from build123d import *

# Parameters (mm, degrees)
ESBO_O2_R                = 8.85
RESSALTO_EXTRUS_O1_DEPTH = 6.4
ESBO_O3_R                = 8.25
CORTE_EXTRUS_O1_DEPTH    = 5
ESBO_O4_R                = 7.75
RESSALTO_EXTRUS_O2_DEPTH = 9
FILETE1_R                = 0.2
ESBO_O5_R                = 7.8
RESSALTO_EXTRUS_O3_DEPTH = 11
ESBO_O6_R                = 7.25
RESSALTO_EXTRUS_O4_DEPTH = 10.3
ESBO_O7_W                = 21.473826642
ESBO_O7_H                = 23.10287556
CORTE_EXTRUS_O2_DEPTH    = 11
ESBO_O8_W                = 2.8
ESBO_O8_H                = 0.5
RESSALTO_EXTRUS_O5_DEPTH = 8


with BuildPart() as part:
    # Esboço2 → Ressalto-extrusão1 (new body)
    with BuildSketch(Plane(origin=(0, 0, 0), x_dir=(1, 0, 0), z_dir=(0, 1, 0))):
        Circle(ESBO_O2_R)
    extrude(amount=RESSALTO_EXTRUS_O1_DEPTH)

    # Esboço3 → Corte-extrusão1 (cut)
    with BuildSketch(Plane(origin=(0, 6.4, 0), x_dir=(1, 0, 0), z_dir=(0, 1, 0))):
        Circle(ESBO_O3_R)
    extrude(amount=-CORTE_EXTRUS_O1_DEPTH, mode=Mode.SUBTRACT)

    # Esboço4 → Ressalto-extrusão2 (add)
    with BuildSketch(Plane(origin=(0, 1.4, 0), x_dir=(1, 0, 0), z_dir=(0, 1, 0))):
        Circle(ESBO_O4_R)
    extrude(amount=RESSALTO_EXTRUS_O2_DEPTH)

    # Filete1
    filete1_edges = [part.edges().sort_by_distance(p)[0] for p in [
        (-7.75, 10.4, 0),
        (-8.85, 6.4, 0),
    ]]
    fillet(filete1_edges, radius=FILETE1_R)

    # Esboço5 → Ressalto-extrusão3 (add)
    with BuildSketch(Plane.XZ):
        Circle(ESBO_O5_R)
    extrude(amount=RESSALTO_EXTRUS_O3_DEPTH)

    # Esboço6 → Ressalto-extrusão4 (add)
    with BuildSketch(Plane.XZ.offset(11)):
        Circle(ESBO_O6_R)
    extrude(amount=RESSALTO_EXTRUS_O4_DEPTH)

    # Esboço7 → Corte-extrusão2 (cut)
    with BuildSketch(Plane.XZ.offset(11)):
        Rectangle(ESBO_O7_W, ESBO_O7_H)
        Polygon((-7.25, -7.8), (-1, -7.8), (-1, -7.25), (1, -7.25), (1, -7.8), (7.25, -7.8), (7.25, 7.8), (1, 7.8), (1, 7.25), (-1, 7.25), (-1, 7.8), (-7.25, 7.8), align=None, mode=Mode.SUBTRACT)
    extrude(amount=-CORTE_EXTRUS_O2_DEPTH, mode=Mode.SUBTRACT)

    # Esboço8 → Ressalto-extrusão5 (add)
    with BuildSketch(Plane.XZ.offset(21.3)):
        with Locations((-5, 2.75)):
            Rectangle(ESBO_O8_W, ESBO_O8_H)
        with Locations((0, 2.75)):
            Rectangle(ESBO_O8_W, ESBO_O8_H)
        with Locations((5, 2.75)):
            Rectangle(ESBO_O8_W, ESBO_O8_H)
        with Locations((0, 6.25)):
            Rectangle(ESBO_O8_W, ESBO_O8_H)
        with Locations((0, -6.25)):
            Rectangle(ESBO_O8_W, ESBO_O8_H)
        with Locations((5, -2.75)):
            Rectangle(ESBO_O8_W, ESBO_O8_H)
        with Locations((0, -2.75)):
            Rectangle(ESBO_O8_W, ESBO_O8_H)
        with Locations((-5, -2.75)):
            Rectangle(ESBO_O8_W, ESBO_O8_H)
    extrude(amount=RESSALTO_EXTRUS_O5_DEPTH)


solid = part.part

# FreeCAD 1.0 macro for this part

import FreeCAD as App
import Part
import Sketcher


def edges_at(feature, points):
    """Names of the edges that pass closest to the given points."""
    edges = feature.Shape.Edges
    near = lambda p: min(range(len(edges)), key=lambda i: edges[i].distToShape(Part.Vertex(*p))[0])
    return sorted({f"Edge{near(p) + 1}" for p in points})


def add_polygon(sketch, points):
    """Adds a closed chain of lines whose ends are joined by coincident constraints."""
    first, n = sketch.GeometryCount, len(points)
    for a, b in zip(points, points[1:] + points[:1]):
        sketch.addGeometry(Part.LineSegment(App.Vector(*a, 0), App.Vector(*b, 0)), False)
    for i in range(n):
        sketch.addConstraint(Sketcher.Constraint("Coincident", first + i, 2, first + (i + 1) % n, 1))

doc = App.newDocument("Part")
params = doc.addObject("Spreadsheet::Sheet", "Params")
for row, (alias, value) in enumerate([
    ("sketch1_diameter", "17.7 mm"),
    ("pad1_length", "6.4 mm"),
    ("sketch2_diameter", "16.5 mm"),
    ("pocket1_length", "5 mm"),
    ("sketch3_diameter", "15.5 mm"),
    ("pad2_length", "9 mm"),
    ("fillet_radius", "0.2 mm"),
    ("sketch4_diameter", "15.6 mm"),
    ("pad3_length", "11 mm"),
    ("sketch5_diameter", "14.5 mm"),
    ("pad4_length", "10.3 mm"),
    ("sketch6_width", "2 mm"),
    ("sketch6_height", "15.6 mm"),
    ("sketch6_width2", "6.25 mm"),
    ("sketch6_height2", "0.55 mm"),
    ("pocket2_length", "11 mm"),
    ("sketch7_width", "2.8 mm"),
    ("sketch7_height", "0.5 mm"),
    ("pad5_length", "8 mm"),
], start=1):
    params.set(f"A{row}", alias)
    params.set(f"B{row}", "=" + value)
    params.setAlias(f"B{row}", alias)

body = doc.addObject("PartDesign::Body", "Body")

# Sketch on XZ plane
sketch1 = doc.addObject("Sketcher::SketchObject", "Sketch")
body.addObject(sketch1)
sketch1.AttachmentSupport = (doc.XZ_Plane, [""])
sketch1.MapMode = "FlatFace"
sketch1.addGeometry(Part.Circle(App.Vector(0, 0, 0), App.Vector(0, 0, 1), 9), False)
sketch1.addConstraint(Sketcher.Constraint("Coincident", 0, 3, -1, 1))
sketch1.addConstraint(Sketcher.Constraint("Diameter", 0, 17.7))
sketch1.setExpression("Constraints[1]", "Params.sketch1_diameter")
pad1 = doc.addObject("PartDesign::Pad", "Pad")
body.addObject(pad1)
pad1.Profile = sketch1
pad1.setExpression("Length", "Params.pad1_length")
pad1.Reversed = True

# Sketch on XZ plane
sketch2 = doc.addObject("Sketcher::SketchObject", "Sketch001")
body.addObject(sketch2)
sketch2.AttachmentSupport = (doc.XZ_Plane, [""])
sketch2.MapMode = "FlatFace"
sketch2.AttachmentOffset = App.Placement(App.Vector(0, 0, -6.4), App.Rotation())
sketch2.addGeometry(Part.Circle(App.Vector(0, 0, 0), App.Vector(0, 0, 1), 8), False)
sketch2.addConstraint(Sketcher.Constraint("Coincident", 0, 3, -1, 1))
sketch2.addConstraint(Sketcher.Constraint("Diameter", 0, 16.5))
sketch2.setExpression("Constraints[1]", "Params.sketch2_diameter")
pocket1 = doc.addObject("PartDesign::Pocket", "Pocket")
body.addObject(pocket1)
pocket1.Profile = sketch2
pocket1.setExpression("Length", "Params.pocket1_length")
pocket1.Reversed = True

# Sketch on XZ plane
sketch3 = doc.addObject("Sketcher::SketchObject", "Sketch002")
body.addObject(sketch3)
sketch3.AttachmentSupport = (doc.XZ_Plane, [""])
sketch3.MapMode = "FlatFace"
sketch3.AttachmentOffset = App.Placement(App.Vector(0, 0, -1.4), App.Rotation())
sketch3.addGeometry(Part.Circle(App.Vector(0, 0, 0), App.Vector(0, 0, 1), 8), False)
sketch3.addConstraint(Sketcher.Constraint("Coincident", 0, 3, -1, 1))
sketch3.addConstraint(Sketcher.Constraint("Diameter", 0, 15.5))
sketch3.setExpression("Constraints[1]", "Params.sketch3_diameter")
pad2 = doc.addObject("PartDesign::Pad", "Pad001")
body.addObject(pad2)
pad2.Profile = sketch3
pad2.setExpression("Length", "Params.pad2_length")
pad2.Reversed = True
doc.recompute()

fillet = doc.addObject("PartDesign::Fillet", "Fillet")
body.addObject(fillet)
fillet.Base = (pad2, edges_at(pad2, [(-7.75, 10.4, 0), (-8.85, 6.4, 0)]))
fillet.setExpression("Radius", "Params.fillet_radius")

# Sketch on XZ plane
sketch4 = doc.addObject("Sketcher::SketchObject", "Sketch003")
body.addObject(sketch4)
sketch4.AttachmentSupport = (doc.XZ_Plane, [""])
sketch4.MapMode = "FlatFace"
sketch4.addGeometry(Part.Circle(App.Vector(0, 0, 0), App.Vector(0, 0, 1), 8), False)
sketch4.addConstraint(Sketcher.Constraint("Coincident", 0, 3, -1, 1))
sketch4.addConstraint(Sketcher.Constraint("Diameter", 0, 15.6))
sketch4.setExpression("Constraints[1]", "Params.sketch4_diameter")
pad3 = doc.addObject("PartDesign::Pad", "Pad002")
body.addObject(pad3)
pad3.Profile = sketch4
pad3.setExpression("Length", "Params.pad3_length")

# Sketch on XZ plane
sketch5 = doc.addObject("Sketcher::SketchObject", "Sketch004")
body.addObject(sketch5)
sketch5.AttachmentSupport = (doc.XZ_Plane, [""])
sketch5.MapMode = "FlatFace"
sketch5.AttachmentOffset = App.Placement(App.Vector(0, 0, 11), App.Rotation())
sketch5.addGeometry(Part.Circle(App.Vector(0, 0, 0), App.Vector(0, 0, 1), 7), False)
sketch5.addConstraint(Sketcher.Constraint("Coincident", 0, 3, -1, 1))
sketch5.addConstraint(Sketcher.Constraint("Diameter", 0, 14.5))
sketch5.setExpression("Constraints[1]", "Params.sketch5_diameter")
pad4 = doc.addObject("PartDesign::Pad", "Pad003")
body.addObject(pad4)
pad4.Profile = sketch5
pad4.setExpression("Length", "Params.pad4_length")

# Sketch on XZ plane
sketch6 = doc.addObject("Sketcher::SketchObject", "Sketch005")
body.addObject(sketch6)
sketch6.AttachmentSupport = (doc.XZ_Plane, [""])
sketch6.MapMode = "FlatFace"
sketch6.AttachmentOffset = App.Placement(App.Vector(0, 0, 11), App.Rotation())
add_polygon(sketch6, [(-10.7, 11.6), (-10.7, -11.6), (10.7, -11.6), (10.7, 11.6)])  # lines 0-3
add_polygon(sketch6, [(-1, -7.8), (-7.2, -7.8), (-7.2, 7.8), (-1, 7.8), (-1, 7.2), (1, 7.2), (1, 7.8), (7.2, 7.8), (7.2, -7.8), (1, -7.8), (1, -7.2), (-1, -7.2)])  # lines 4-15
sketch6.addConstraint(Sketcher.Constraint("Vertical", 0))
sketch6.addConstraint(Sketcher.Constraint("Horizontal", 1))
sketch6.addConstraint(Sketcher.Constraint("Vertical", 2))
sketch6.addConstraint(Sketcher.Constraint("Horizontal", 3))
sketch6.addConstraint(Sketcher.Constraint("Horizontal", 4))
sketch6.addConstraint(Sketcher.Constraint("Vertical", 5))
sketch6.addConstraint(Sketcher.Constraint("Horizontal", 6))
sketch6.addConstraint(Sketcher.Constraint("Vertical", 7))
sketch6.addConstraint(Sketcher.Constraint("Horizontal", 8))
sketch6.addConstraint(Sketcher.Constraint("Vertical", 9))
sketch6.addConstraint(Sketcher.Constraint("Horizontal", 10))
sketch6.addConstraint(Sketcher.Constraint("Vertical", 11))
sketch6.addConstraint(Sketcher.Constraint("Horizontal", 12))
sketch6.addConstraint(Sketcher.Constraint("Vertical", 13))
sketch6.addConstraint(Sketcher.Constraint("Horizontal", 14))
sketch6.addConstraint(Sketcher.Constraint("Vertical", 15))
sketch6.addConstraint(Sketcher.Constraint("Symmetric", 0, 2, 2, 2, -1, 1))
sketch6.addConstraint(Sketcher.Constraint("Symmetric", 4, 2, 10, 2, -1, 1))
sketch6.addConstraint(Sketcher.Constraint("Symmetric", 6, 2, 12, 2, -1, 1))
sketch6.addConstraint(Sketcher.Constraint("Symmetric", 8, 2, 14, 2, -1, 1))
sketch6.addConstraint(Sketcher.Constraint("Symmetric", 6, 2, 9, 2, -2))
sketch6.addConstraint(Sketcher.Constraint("DistanceX", 8, 1, 8, 2, 2.0))
sketch6.addConstraint(Sketcher.Constraint("DistanceY", 5, 1, 5, 2, 15.6))
sketch6.addConstraint(Sketcher.Constraint("DistanceX", 4, 2, 4, 1, 6.25))
sketch6.addConstraint(Sketcher.Constraint("DistanceY", 7, 2, 7, 1, 0.55))
sketch6.addConstraint(Sketcher.Constraint("DistanceX", 1, 1, 1, 2, 21.473827))
sketch6.addConstraint(Sketcher.Constraint("DistanceY", 0, 2, 0, 1, 23.102876))
sketch6.setExpression("Constraints[37]", "Params.sketch6_width")
sketch6.setExpression("Constraints[38]", "Params.sketch6_height")
sketch6.setExpression("Constraints[39]", "Params.sketch6_width2")
sketch6.setExpression("Constraints[40]", "Params.sketch6_height2")
pocket2 = doc.addObject("PartDesign::Pocket", "Pocket001")
body.addObject(pocket2)
pocket2.Profile = sketch6
pocket2.setExpression("Length", "Params.pocket2_length")

# Sketch on XZ plane
sketch7 = doc.addObject("Sketcher::SketchObject", "Sketch006")
body.addObject(sketch7)
sketch7.AttachmentSupport = (doc.XZ_Plane, [""])
sketch7.MapMode = "FlatFace"
sketch7.AttachmentOffset = App.Placement(App.Vector(0, 0, 21.3), App.Rotation())
add_polygon(sketch7, [(-6.4, 3), (-6.4, 2.5), (-3.6, 2.5), (-3.6, 3)])  # lines 0-3
add_polygon(sketch7, [(-1.4, 3), (-1.4, 2.5), (1.4, 2.5), (1.4, 3)])  # lines 4-7
add_polygon(sketch7, [(3.6, 3), (3.6, 2.5), (6.4, 2.5), (6.4, 3)])  # lines 8-11
add_polygon(sketch7, [(-1.4, 6.5), (-1.4, 6), (1.4, 6), (1.4, 6.5)])  # lines 12-15
add_polygon(sketch7, [(-1.4, -6), (-1.4, -6.5), (1.4, -6.5), (1.4, -6)])  # lines 16-19
add_polygon(sketch7, [(3.6, -2.5), (3.6, -3), (6.4, -3), (6.4, -2.5)])  # lines 20-23
add_polygon(sketch7, [(-1.4, -2.5), (-1.4, -3), (1.4, -3), (1.4, -2.5)])  # lines 24-27
add_polygon(sketch7, [(-6.4, -2.5), (-6.4, -3), (-3.6, -3), (-3.6, -2.5)])  # lines 28-31
sketch7.addConstraint(Sketcher.Constraint("Vertical", 0))
sketch7.addConstraint(Sketcher.Constraint("Horizontal", 1))
sketch7.addConstraint(Sketcher.Constraint("Vertical", 2))
sketch7.addConstraint(Sketcher.Constraint("Horizontal", 3))
sketch7.addConstraint(Sketcher.Constraint("Vertical", 4))
sketch7.addConstraint(Sketcher.Constraint("Horizontal", 5))
sketch7.addConstraint(Sketcher.Constraint("Vertical", 6))
sketch7.addConstraint(Sketcher.Constraint("Horizontal", 7))
sketch7.addConstraint(Sketcher.Constraint("Vertical", 8))
sketch7.addConstraint(Sketcher.Constraint("Horizontal", 9))
sketch7.addConstraint(Sketcher.Constraint("Vertical", 10))
sketch7.addConstraint(Sketcher.Constraint("Horizontal", 11))
sketch7.addConstraint(Sketcher.Constraint("Vertical", 12))
sketch7.addConstraint(Sketcher.Constraint("Horizontal", 13))
sketch7.addConstraint(Sketcher.Constraint("Vertical", 14))
sketch7.addConstraint(Sketcher.Constraint("Horizontal", 15))
sketch7.addConstraint(Sketcher.Constraint("Vertical", 16))
sketch7.addConstraint(Sketcher.Constraint("Horizontal", 17))
sketch7.addConstraint(Sketcher.Constraint("Vertical", 18))
sketch7.addConstraint(Sketcher.Constraint("Horizontal", 19))
sketch7.addConstraint(Sketcher.Constraint("Vertical", 20))
sketch7.addConstraint(Sketcher.Constraint("Horizontal", 21))
sketch7.addConstraint(Sketcher.Constraint("Vertical", 22))
sketch7.addConstraint(Sketcher.Constraint("Horizontal", 23))
sketch7.addConstraint(Sketcher.Constraint("Vertical", 24))
sketch7.addConstraint(Sketcher.Constraint("Horizontal", 25))
sketch7.addConstraint(Sketcher.Constraint("Vertical", 26))
sketch7.addConstraint(Sketcher.Constraint("Horizontal", 27))
sketch7.addConstraint(Sketcher.Constraint("Vertical", 28))
sketch7.addConstraint(Sketcher.Constraint("Horizontal", 29))
sketch7.addConstraint(Sketcher.Constraint("Vertical", 30))
sketch7.addConstraint(Sketcher.Constraint("Horizontal", 31))
sketch7.addConstraint(Sketcher.Constraint("Symmetric", 14, 2, 16, 2, -1, 1))
sketch7.addConstraint(Sketcher.Constraint("Symmetric", 12, 2, 18, 2, -1, 1))
sketch7.addConstraint(Sketcher.Constraint("Symmetric", 2, 2, 20, 2, -1, 1))
sketch7.addConstraint(Sketcher.Constraint("Symmetric", 0, 2, 22, 2, -1, 1))
sketch7.addConstraint(Sketcher.Constraint("Symmetric", 6, 2, 24, 2, -1, 1))
sketch7.addConstraint(Sketcher.Constraint("Symmetric", 4, 2, 26, 2, -1, 1))
sketch7.addConstraint(Sketcher.Constraint("Symmetric", 10, 2, 28, 2, -1, 1))
sketch7.addConstraint(Sketcher.Constraint("Symmetric", 8, 2, 30, 2, -1, 1))
sketch7.addConstraint(Sketcher.Constraint("Symmetric", 1, 2, 8, 2, -2))
sketch7.addConstraint(Sketcher.Constraint("Symmetric", 3, 2, 10, 2, -2))
sketch7.addConstraint(Sketcher.Constraint("Horizontal", 1, 2, 4, 2))
sketch7.addConstraint(Sketcher.Constraint("Horizontal", 3, 2, 6, 2))
sketch7.addConstraint(Sketcher.Constraint("Vertical", 7, 2, 12, 2))
sketch7.addConstraint(Sketcher.Constraint("Vertical", 6, 2, 13, 2))
sketch7.addConstraint(Sketcher.Constraint("Vertical", 15, 2, 16, 2))
sketch7.addConstraint(Sketcher.Constraint("Equal", 3, 5))
sketch7.addConstraint(Sketcher.Constraint("Equal", 10, 12))
sketch7.addConstraint(Sketcher.Constraint("DistanceX", 1, 1, 1, 2, 2.8))
sketch7.addConstraint(Sketcher.Constraint("DistanceY", 0, 2, 0, 1, 0.5))
sketch7.addConstraint(Sketcher.Constraint("DistanceY", -1, 1, 2, 2, 3.0))
sketch7.addConstraint(Sketcher.Constraint("DistanceY", -1, 1, 12, 2, 6.0))
sketch7.addConstraint(Sketcher.Constraint("DistanceX", 0, 2, 4, 2, 5.0))
sketch7.setExpression("Constraints[81]", "Params.sketch7_width")
sketch7.setExpression("Constraints[82]", "Params.sketch7_height")
pad5 = doc.addObject("PartDesign::Pad", "Pad004")
body.addObject(pad5)
pad5.Profile = sketch7
pad5.setExpression("Length", "Params.pad5_length")

doc.recompute()
